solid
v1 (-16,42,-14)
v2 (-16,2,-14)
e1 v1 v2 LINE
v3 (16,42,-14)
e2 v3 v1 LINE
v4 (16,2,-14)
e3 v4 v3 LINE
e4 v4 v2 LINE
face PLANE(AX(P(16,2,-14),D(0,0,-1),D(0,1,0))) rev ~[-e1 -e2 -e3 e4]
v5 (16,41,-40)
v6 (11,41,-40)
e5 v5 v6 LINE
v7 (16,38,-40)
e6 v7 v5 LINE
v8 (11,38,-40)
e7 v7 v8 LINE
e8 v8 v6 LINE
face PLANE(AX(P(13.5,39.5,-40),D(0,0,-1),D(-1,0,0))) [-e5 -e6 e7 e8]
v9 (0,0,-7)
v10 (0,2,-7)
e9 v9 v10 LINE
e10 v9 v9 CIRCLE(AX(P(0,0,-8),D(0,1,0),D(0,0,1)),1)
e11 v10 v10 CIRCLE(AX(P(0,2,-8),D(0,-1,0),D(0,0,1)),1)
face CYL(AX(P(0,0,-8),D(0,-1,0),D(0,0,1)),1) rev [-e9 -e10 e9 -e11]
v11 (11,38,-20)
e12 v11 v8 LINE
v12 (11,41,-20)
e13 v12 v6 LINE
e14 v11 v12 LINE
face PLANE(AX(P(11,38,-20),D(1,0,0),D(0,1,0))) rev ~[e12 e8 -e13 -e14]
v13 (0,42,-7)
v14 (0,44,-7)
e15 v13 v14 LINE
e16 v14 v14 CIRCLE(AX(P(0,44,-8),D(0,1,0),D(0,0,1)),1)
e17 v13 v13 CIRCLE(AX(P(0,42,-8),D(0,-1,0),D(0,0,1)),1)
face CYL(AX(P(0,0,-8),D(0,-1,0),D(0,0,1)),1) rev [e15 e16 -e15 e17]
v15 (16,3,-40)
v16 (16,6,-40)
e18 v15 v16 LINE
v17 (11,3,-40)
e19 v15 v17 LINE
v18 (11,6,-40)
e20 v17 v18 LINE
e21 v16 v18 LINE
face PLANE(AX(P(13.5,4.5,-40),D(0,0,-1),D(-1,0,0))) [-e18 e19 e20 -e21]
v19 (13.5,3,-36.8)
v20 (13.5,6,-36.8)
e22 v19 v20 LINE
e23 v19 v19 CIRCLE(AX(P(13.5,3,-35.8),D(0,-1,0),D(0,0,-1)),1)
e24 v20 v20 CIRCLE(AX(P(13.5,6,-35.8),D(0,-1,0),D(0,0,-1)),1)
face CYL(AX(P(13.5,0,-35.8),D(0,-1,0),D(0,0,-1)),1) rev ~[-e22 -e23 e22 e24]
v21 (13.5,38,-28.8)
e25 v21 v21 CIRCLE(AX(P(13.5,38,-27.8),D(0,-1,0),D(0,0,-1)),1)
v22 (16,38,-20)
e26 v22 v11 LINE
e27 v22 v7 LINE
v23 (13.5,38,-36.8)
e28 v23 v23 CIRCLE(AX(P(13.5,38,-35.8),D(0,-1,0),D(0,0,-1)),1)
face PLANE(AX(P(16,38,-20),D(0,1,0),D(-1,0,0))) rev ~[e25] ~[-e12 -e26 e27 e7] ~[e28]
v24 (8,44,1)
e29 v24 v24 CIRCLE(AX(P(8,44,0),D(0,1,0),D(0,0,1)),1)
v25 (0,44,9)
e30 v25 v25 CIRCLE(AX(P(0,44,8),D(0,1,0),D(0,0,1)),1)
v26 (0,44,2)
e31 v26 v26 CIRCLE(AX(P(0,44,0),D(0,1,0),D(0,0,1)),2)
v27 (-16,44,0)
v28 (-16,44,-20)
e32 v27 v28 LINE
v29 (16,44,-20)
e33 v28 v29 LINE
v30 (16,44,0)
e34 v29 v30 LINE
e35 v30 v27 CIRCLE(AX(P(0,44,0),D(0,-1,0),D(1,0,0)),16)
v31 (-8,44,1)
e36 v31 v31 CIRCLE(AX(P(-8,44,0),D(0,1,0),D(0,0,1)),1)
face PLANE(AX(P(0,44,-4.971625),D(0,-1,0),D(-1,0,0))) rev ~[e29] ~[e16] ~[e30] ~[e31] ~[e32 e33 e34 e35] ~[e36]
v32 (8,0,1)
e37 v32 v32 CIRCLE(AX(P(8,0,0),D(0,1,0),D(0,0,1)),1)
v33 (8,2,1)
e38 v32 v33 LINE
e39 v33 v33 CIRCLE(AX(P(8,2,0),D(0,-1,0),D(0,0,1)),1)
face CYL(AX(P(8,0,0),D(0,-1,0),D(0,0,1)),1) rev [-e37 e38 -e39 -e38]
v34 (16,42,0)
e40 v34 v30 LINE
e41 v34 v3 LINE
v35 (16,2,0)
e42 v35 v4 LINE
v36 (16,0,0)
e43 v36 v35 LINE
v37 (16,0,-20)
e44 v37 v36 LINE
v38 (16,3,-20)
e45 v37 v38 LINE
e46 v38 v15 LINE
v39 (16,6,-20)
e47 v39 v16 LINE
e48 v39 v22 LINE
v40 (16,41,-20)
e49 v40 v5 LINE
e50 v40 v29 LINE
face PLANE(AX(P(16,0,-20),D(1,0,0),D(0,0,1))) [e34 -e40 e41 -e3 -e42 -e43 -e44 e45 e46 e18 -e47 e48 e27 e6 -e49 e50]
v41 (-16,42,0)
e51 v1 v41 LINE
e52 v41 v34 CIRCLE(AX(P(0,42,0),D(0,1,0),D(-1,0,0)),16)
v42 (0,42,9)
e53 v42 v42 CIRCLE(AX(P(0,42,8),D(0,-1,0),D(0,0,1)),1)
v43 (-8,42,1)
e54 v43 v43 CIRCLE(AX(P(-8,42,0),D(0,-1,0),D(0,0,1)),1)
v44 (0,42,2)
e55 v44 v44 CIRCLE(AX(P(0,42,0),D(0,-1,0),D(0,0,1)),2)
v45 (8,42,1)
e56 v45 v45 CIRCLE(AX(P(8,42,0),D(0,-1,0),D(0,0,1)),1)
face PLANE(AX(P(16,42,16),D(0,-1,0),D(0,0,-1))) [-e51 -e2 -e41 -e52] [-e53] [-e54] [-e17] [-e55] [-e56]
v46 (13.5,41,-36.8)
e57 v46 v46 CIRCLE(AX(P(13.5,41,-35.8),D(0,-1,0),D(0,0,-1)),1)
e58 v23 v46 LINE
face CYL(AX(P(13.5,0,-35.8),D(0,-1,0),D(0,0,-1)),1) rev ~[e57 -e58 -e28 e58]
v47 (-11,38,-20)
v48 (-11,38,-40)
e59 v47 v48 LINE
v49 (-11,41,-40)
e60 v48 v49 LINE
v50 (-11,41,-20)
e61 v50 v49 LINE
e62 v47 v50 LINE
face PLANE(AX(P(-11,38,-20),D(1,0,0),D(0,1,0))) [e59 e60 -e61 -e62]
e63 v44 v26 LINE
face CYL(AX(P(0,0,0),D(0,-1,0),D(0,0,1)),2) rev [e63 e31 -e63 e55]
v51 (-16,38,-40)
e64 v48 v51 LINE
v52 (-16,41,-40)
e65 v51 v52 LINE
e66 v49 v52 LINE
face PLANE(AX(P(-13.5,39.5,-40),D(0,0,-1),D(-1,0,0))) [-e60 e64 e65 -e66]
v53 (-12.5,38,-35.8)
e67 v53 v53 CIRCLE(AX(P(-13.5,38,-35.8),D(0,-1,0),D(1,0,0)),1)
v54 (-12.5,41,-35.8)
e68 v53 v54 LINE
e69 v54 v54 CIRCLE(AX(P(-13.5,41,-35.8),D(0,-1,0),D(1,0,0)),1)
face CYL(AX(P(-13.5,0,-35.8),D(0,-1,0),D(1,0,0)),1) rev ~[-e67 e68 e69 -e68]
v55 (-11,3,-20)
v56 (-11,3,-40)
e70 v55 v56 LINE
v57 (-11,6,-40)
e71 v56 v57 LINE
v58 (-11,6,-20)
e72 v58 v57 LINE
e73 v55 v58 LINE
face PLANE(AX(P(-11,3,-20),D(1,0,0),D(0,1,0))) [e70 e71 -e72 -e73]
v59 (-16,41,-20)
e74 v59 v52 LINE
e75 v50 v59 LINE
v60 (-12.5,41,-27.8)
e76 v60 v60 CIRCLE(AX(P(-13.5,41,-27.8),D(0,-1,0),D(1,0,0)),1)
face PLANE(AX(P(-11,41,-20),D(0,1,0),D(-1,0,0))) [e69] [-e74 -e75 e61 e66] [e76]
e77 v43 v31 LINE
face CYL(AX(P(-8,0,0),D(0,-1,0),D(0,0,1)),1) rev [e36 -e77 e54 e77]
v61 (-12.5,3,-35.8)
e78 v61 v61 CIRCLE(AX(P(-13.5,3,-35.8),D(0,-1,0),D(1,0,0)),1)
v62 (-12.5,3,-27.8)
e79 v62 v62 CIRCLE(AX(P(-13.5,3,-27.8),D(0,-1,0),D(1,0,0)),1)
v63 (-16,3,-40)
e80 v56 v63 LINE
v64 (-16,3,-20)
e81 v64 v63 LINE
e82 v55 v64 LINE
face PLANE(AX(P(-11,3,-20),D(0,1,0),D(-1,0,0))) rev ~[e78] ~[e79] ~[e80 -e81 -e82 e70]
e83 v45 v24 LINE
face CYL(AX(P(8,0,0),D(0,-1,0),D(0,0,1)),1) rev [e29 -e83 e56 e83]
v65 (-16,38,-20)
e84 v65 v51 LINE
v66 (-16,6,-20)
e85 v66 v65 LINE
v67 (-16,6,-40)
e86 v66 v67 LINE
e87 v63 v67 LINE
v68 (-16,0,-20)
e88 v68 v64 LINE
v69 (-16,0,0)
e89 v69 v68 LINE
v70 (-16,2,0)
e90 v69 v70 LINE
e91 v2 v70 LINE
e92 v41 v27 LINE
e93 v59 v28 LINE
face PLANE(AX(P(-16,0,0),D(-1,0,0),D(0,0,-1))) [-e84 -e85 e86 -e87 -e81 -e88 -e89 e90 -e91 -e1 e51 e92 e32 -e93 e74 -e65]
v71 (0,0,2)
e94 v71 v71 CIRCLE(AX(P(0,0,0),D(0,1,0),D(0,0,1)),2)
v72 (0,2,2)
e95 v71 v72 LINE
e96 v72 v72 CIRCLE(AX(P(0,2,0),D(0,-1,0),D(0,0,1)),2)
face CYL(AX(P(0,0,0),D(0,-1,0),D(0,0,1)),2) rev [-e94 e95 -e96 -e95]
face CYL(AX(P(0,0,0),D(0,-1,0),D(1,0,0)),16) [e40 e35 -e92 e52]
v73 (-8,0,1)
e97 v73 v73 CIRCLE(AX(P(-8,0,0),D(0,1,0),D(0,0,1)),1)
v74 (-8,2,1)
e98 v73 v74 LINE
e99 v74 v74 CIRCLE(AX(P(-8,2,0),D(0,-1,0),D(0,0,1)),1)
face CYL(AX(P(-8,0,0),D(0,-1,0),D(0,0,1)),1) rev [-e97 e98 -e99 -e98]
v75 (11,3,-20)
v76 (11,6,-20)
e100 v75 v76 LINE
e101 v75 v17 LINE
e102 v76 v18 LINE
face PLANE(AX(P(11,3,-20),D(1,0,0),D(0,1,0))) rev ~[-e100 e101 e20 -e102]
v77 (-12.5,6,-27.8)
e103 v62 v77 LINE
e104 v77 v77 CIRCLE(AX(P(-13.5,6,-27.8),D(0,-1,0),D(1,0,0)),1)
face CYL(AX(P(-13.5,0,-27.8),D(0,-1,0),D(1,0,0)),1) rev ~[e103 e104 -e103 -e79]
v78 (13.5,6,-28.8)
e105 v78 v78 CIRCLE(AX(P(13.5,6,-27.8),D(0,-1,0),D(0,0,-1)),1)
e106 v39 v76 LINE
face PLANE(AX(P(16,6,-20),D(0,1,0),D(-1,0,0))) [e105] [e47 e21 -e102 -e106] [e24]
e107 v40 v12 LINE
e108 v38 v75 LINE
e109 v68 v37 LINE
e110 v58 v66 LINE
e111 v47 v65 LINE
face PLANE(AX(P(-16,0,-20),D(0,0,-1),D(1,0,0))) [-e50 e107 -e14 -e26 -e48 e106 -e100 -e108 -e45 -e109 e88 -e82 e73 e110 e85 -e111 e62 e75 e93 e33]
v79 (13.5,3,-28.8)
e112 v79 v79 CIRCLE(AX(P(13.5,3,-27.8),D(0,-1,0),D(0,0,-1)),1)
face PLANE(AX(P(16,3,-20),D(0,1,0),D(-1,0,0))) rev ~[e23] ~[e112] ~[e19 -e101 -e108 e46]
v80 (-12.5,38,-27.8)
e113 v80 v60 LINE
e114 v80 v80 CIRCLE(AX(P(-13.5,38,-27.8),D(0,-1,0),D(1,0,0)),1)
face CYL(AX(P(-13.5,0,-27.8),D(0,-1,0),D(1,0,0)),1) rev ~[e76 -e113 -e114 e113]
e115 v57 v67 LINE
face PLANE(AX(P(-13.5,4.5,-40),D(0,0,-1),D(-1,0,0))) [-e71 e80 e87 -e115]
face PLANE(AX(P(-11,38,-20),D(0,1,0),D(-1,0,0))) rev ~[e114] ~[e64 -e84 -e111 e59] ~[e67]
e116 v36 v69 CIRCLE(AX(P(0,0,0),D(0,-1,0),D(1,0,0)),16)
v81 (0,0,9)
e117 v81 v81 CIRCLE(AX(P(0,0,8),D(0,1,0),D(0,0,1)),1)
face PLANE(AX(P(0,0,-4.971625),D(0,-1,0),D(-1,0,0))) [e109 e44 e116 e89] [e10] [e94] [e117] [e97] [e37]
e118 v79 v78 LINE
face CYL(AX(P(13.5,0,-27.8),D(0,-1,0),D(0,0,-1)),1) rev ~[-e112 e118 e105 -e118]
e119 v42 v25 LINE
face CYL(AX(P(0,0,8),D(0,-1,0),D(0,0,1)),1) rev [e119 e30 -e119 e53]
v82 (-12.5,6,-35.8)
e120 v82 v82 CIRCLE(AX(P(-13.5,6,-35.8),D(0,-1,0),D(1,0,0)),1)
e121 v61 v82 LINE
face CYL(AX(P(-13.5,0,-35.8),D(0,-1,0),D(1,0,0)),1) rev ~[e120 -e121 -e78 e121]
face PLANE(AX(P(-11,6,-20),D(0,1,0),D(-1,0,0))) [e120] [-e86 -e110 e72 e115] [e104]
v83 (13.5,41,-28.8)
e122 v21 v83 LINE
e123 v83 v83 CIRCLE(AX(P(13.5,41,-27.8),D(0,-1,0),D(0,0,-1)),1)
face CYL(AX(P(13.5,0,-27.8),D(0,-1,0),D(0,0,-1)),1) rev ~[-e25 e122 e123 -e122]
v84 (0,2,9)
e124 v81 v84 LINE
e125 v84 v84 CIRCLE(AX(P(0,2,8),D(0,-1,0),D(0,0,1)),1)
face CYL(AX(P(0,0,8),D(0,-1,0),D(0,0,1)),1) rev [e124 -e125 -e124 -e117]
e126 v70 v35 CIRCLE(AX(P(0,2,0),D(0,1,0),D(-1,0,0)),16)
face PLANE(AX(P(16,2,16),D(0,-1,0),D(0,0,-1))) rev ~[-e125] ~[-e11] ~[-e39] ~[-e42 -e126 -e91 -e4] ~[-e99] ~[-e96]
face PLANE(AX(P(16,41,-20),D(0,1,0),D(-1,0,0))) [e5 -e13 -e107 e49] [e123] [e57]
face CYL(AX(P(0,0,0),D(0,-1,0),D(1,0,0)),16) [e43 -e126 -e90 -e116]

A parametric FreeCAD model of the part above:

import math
import FreeCAD as App
import Part
import Sketcher

V = App.Vector
Q = App.Units.Quantity

doc = App.newDocument("Part")
params = doc.addObject("Spreadsheet::Sheet", "Params")
for row, (alias, value) in enumerate([
    ("sketch1_diameter", "2 mm"),
    ("sketch1_diameter2", "4 mm"),
    ("sketch1_radius", "16 mm"),
    ("sketch1_height", "20 mm"),
    ("pad1_length", "44 mm"),
    ("sketch2_width", "40 mm"),
    ("sketch2_height", "30 mm"),
    ("sketch3_width", "5 mm"),
    ("sketch3_height", "3 mm"),
    ("pad2_length", "20 mm"),
    ("sketch4_diameter", "2 mm"),
], start=1):
    params.set(f"A{row}", alias)
    params.set(f"B{row}", "=" + value)
    params.setAlias(f"B{row}", alias)

body = doc.addObject("PartDesign::Body", "Body")

# Sketch on XZ plane
sketch1 = body.newObject("Sketcher::SketchObject", "Sketch")
sketch1.AttachmentSupport = (doc.getObject("XZ_Plane"), [""])
sketch1.MapMode = "FlatFace"
sketch1.addGeometry([
    Part.LineSegment(V(-16, -20, 0), V(-16, 0, 0)),  # 0
    Part.ArcOfCircle(Part.Circle(V(0, 0, 0), V(0, 0, 1), 16), math.radians(0), math.radians(180)),  # 1
    Part.LineSegment(V(16, 0, 0), V(16, -20, 0)),  # 2
    Part.LineSegment(V(16, -20, 0), V(-16, -20, 0)),  # 3
    Part.Circle(V(0, 8, 0), V(0, 0, 1), 1),  # 4
    Part.Circle(V(8, 0, 0), V(0, 0, 1), 1),  # 5
    Part.Circle(V(0, 0, 0), V(0, 0, 1), 2),  # 6
    Part.Circle(V(-8, 0, 0), V(0, 0, 1), 1),  # 7
    Part.Circle(V(0, -8, 0), V(0, 0, 1), 1),  # 8
], False)
sketch1.addConstraint([
    Sketcher.Constraint("Tangent", 0, 2, 1, 2),
    Sketcher.Constraint("Tangent", 1, 1, 2, 1),
    Sketcher.Constraint("Coincident", 2, 2, 3, 1),
    Sketcher.Constraint("Coincident", 3, 2, 0, 1),
    Sketcher.Constraint("Vertical", 0),
    Sketcher.Constraint("Vertical", 2),
    Sketcher.Constraint("Horizontal", 3),
    Sketcher.Constraint("Coincident", 1, 3, -1, 1),
    Sketcher.Constraint("Coincident", 6, 3, -1, 1),
    Sketcher.Constraint("Equal", 4, 5),
    Sketcher.Constraint("Equal", 5, 7),
    Sketcher.Constraint("Equal", 7, 8),
    Sketcher.Constraint("Symmetric", 5, 3, 7, 3, -1, 1),
    Sketcher.Constraint("Symmetric", 4, 3, 8, 3, -1, 1),
    Sketcher.Constraint("PointOnObject", 4, 3, -2),
    Sketcher.Constraint("PointOnObject", 5, 3, -1),
    Sketcher.Constraint("Diameter", 4, Q("2 mm")),
    Sketcher.Constraint("Diameter", 6, Q("4 mm")),
    Sketcher.Constraint("Radius", 1, Q("16 mm")),
    Sketcher.Constraint("DistanceY", 0, 1, 0, 2, Q("20 mm")),
    Sketcher.Constraint("DistanceY", -1, 1, 4, 3, Q("8 mm")),
    Sketcher.Constraint("DistanceX", -1, 1, 5, 3, Q("8 mm")),
])
sketch1.setExpression("Constraints[16]", "Params.sketch1_diameter")
sketch1.setExpression("Constraints[17]", "Params.sketch1_diameter2")
sketch1.setExpression("Constraints[18]", "Params.sketch1_radius")
sketch1.setExpression("Constraints[19]", "Params.sketch1_height")
pad1 = body.newObject("PartDesign::Pad", "Pad")
pad1.Profile = sketch1
pad1.setExpression("Length", "Params.pad1_length")
pad1.Reversed = True

# Sketch on YZ plane
sketch2 = body.newObject("Sketcher::SketchObject", "Sketch001")
sketch2.AttachmentSupport = (doc.getObject("YZ_Plane"), [""])
sketch2.MapMode = "FlatFace"
sketch2.AttachmentOffset = App.Placement(V(0, 0, 16), App.Rotation())
sketch2.addGeometry([
    Part.LineSegment(V(42, 16, 0), V(2, 16, 0)),
    Part.LineSegment(V(2, 16, 0), V(2, -14, 0)),
    Part.LineSegment(V(2, -14, 0), V(42, -14, 0)),
    Part.LineSegment(V(42, -14, 0), V(42, 16, 0)),
], False)
sketch2.addConstraint([
    Sketcher.Constraint("Coincident", 0, 2, 1, 1),
    Sketcher.Constraint("Coincident", 1, 2, 2, 1),
    Sketcher.Constraint("Coincident", 2, 2, 3, 1),
    Sketcher.Constraint("Coincident", 3, 2, 0, 1),
    Sketcher.Constraint("Horizontal", 0),
    Sketcher.Constraint("Vertical", 1),
    Sketcher.Constraint("Horizontal", 2),
    Sketcher.Constraint("Vertical", 3),
    Sketcher.Constraint("DistanceX", 0, 2, 0, 1, Q("40 mm")),
    Sketcher.Constraint("DistanceY", 1, 2, 1, 1, Q("30 mm")),
    Sketcher.Constraint("DistanceX", -1, 1, 0, 2, Q("2 mm")),
    Sketcher.Constraint("DistanceY", -1, 1, 0, 2, Q("16 mm")),
])
sketch2.setExpression("Constraints[8]", "Params.sketch2_width")
sketch2.setExpression("Constraints[9]", "Params.sketch2_height")
pocket1 = body.newObject("PartDesign::Pocket", "Pocket")
pocket1.Profile = sketch2
pocket1.Type = "ThroughAll"

# Sketch on XY plane
sketch3 = body.newObject("Sketcher::SketchObject", "Sketch002")
sketch3.AttachmentSupport = (doc.getObject("XY_Plane"), [""])
sketch3.MapMode = "FlatFace"
sketch3.AttachmentOffset = App.Placement(V(0, 0, -20), App.Rotation())
sketch3.addGeometry([
    Part.LineSegment(V(16, 41, 0), V(16, 38, 0)),  # 0
    Part.LineSegment(V(16, 38, 0), V(11, 38, 0)),  # 1
    Part.LineSegment(V(11, 38, 0), V(11, 41, 0)),  # 2
    Part.LineSegment(V(11, 41, 0), V(16, 41, 0)),  # 3
    Part.LineSegment(V(-11, 41, 0), V(-11, 38, 0)),  # 4
    Part.LineSegment(V(-11, 38, 0), V(-16, 38, 0)),  # 5
    Part.LineSegment(V(-16, 38, 0), V(-16, 41, 0)),  # 6
    Part.LineSegment(V(-16, 41, 0), V(-11, 41, 0)),  # 7
    Part.LineSegment(V(16, 6, 0), V(16, 3, 0)),  # 8
    Part.LineSegment(V(16, 3, 0), V(11, 3, 0)),  # 9
    Part.LineSegment(V(11, 3, 0), V(11, 6, 0)),  # 10
    Part.LineSegment(V(11, 6, 0), V(16, 6, 0)),  # 11
    Part.LineSegment(V(-11, 6, 0), V(-11, 3, 0)),  # 12
    Part.LineSegment(V(-11, 3, 0), V(-16, 3, 0)),  # 13
    Part.LineSegment(V(-16, 3, 0), V(-16, 6, 0)),  # 14
    Part.LineSegment(V(-16, 6, 0), V(-11, 6, 0)),  # 15
], False)
sketch3.addConstraint([
    Sketcher.Constraint("Coincident", 0, 2, 1, 1),
    Sketcher.Constraint("Coincident", 1, 2, 2, 1),
    Sketcher.Constraint("Coincident", 2, 2, 3, 1),
    Sketcher.Constraint("Coincident", 3, 2, 0, 1),
    Sketcher.Constraint("Coincident", 4, 2, 5, 1),
    Sketcher.Constraint("Coincident", 5, 2, 6, 1),
    Sketcher.Constraint("Coincident", 6, 2, 7, 1),
    Sketcher.Constraint("Coincident", 7, 2, 4, 1),
    Sketcher.Constraint("Coincident", 8, 2, 9, 1),
    Sketcher.Constraint("Coincident", 9, 2, 10, 1),
    Sketcher.Constraint("Coincident", 10, 2, 11, 1),
    Sketcher.Constraint("Coincident", 11, 2, 8, 1),
    Sketcher.Constraint("Coincident", 12, 2, 13, 1),
    Sketcher.Constraint("Coincident", 13, 2, 14, 1),
    Sketcher.Constraint("Coincident", 14, 2, 15, 1),
    Sketcher.Constraint("Coincident", 15, 2, 12, 1),
    Sketcher.Constraint("Vertical", 0),
    Sketcher.Constraint("Horizontal", 1),
    Sketcher.Constraint("Vertical", 2),
    Sketcher.Constraint("Horizontal", 3),
    Sketcher.Constraint("Vertical", 4),
    Sketcher.Constraint("Horizontal", 5),
    Sketcher.Constraint("Vertical", 6),
    Sketcher.Constraint("Horizontal", 7),
    Sketcher.Constraint("Vertical", 8),
    Sketcher.Constraint("Horizontal", 9),
    Sketcher.Constraint("Vertical", 10),
    Sketcher.Constraint("Horizontal", 11),
    Sketcher.Constraint("Vertical", 12),
    Sketcher.Constraint("Horizontal", 13),
    Sketcher.Constraint("Vertical", 14),
    Sketcher.Constraint("Horizontal", 15),
    Sketcher.Constraint("Symmetric", 1, 2, 4, 2, -2),
    Sketcher.Constraint("Symmetric", 3, 2, 6, 2, -2),
    Sketcher.Constraint("Symmetric", 9, 2, 12, 2, -2),
    Sketcher.Constraint("Symmetric", 11, 2, 14, 2, -2),
    Sketcher.Constraint("Vertical", 3, 2, 8, 2),
    Sketcher.Constraint("Vertical", 2, 2, 9, 2),
    Sketcher.Constraint("Equal", 6, 8),
    Sketcher.Constraint("DistanceX", 1, 2, 1, 1, Q("5 mm")),
    Sketcher.Constraint("DistanceY", 0, 2, 0, 1, Q("3 mm")),
    Sketcher.Constraint("DistanceX", -1, 1, 0, 2, Q("16 mm")),
    Sketcher.Constraint("DistanceY", -1, 1, 0, 2, Q("38 mm")),
    Sketcher.Constraint("DistanceY", -1, 1, 8, 2, Q("3 mm")),
])
sketch3.setExpression("Constraints[39]", "Params.sketch3_width")
sketch3.setExpression("Constraints[40]", "Params.sketch3_height")
pad2 = body.newObject("PartDesign::Pad", "Pad001")
pad2.Profile = sketch3
pad2.setExpression("Length", "Params.pad2_length")
pad2.Reversed = True

# Sketch on XZ plane
sketch4 = body.newObject("Sketcher::SketchObject", "Sketch003")
sketch4.AttachmentSupport = (doc.getObject("XZ_Plane"), [""])
sketch4.MapMode = "FlatFace"
sketch4.addGeometry([
    Part.Circle(V(-13.5, -27.8, 0), V(0, 0, 1), 1),
    Part.Circle(V(-13.5, -35.8, 0), V(0, 0, 1), 1),
    Part.Circle(V(13.5, -27.8, 0), V(0, 0, 1), 1),
    Part.Circle(V(13.5, -35.8, 0), V(0, 0, 1), 1),
], False)
sketch4.addConstraint([
    Sketcher.Constraint("Equal", 0, 1),
    Sketcher.Constraint("Equal", 1, 2),
    Sketcher.Constraint("Equal", 2, 3),
    Sketcher.Constraint("Symmetric", 0, 3, 2, 3, -2),
    Sketcher.Constraint("Symmetric", 1, 3, 3, 3, -2),
    Sketcher.Constraint("Vertical", 0, 3, 1, 3),
    Sketcher.Constraint("Diameter", 0, Q("2 mm")),
    Sketcher.Constraint("DistanceY", 1, 3, 0, 3, Q("8 mm")),
    Sketcher.Constraint("DistanceX", 0, 3, 2, 3, Q("27 mm")),
    Sketcher.Constraint("DistanceY", 0, 3, -1, 1, Q("27.8 mm")),
])
sketch4.setExpression("Constraints[6]", "Params.sketch4_diameter")
pocket2 = body.newObject("PartDesign::Pocket", "Pocket001")
pocket2.Profile = sketch4
pocket2.Type = "ThroughAll"

doc.recompute()
